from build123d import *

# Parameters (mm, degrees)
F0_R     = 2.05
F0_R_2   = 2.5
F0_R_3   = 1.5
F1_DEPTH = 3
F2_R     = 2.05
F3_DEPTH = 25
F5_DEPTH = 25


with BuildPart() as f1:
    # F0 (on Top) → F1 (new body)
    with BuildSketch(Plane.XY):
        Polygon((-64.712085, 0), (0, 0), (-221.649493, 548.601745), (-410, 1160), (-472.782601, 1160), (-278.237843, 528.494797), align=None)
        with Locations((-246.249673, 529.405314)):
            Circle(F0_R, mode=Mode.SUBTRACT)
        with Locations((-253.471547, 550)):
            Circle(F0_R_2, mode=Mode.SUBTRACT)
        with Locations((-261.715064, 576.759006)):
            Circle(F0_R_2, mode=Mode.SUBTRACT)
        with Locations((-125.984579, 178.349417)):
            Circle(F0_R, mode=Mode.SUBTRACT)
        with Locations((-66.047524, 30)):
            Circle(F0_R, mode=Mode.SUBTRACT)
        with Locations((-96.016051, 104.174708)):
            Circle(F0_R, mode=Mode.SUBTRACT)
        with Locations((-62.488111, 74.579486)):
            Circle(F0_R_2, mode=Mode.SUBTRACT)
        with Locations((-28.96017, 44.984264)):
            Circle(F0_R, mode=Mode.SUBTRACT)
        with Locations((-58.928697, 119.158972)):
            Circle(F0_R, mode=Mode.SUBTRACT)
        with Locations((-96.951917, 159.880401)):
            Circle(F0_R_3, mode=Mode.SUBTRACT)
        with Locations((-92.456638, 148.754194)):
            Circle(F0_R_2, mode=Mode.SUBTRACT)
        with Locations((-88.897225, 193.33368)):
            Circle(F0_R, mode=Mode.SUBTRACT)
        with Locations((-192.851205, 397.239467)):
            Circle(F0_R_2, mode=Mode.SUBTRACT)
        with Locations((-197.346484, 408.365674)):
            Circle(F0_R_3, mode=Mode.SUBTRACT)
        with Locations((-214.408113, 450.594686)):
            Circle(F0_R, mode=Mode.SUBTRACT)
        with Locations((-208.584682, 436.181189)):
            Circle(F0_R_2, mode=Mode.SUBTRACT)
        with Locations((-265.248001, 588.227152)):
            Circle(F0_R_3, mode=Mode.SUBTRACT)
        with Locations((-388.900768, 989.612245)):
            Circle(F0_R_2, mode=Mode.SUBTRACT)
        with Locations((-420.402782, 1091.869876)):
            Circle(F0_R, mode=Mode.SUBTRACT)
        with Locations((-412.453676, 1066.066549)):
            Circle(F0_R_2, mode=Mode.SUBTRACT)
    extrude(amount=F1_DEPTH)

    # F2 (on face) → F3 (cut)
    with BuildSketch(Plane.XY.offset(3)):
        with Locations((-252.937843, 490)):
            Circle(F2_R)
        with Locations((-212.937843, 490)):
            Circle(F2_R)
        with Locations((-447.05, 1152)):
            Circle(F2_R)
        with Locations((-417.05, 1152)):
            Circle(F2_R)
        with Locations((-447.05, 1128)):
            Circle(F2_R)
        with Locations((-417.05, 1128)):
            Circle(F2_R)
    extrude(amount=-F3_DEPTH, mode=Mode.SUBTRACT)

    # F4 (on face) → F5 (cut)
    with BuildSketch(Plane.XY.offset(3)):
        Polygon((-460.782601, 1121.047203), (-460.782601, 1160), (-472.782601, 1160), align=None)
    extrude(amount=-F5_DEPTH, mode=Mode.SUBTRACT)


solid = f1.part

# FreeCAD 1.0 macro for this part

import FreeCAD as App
import Part
import Sketcher

V = App.Vector
Q = App.Units.Quantity

doc = App.newDocument("Part")
body = doc.addObject("PartDesign::Body", "Body")

# Sketch on XY plane
sketch1 = doc.addObject("Sketcher::SketchObject", "Sketch")
body.addObject(sketch1)
sketch1.AttachmentSupport = (doc.XY_Plane, [""])
sketch1.MapMode = "FlatFace"
sketch1.addGeometry(Part.LineSegment(V(-64.712085, 0, 0), V(0, 0, 0)), False)
sketch1.addGeometry(Part.LineSegment(V(0, 0, 0), V(-221.649493, 548.601745, 0)), False)
sketch1.addGeometry(Part.LineSegment(V(-221.649493, 548.601745, 0), V(-410, 1160, 0)), False)
sketch1.addGeometry(Part.LineSegment(V(-410, 1160, 0), V(-472.782601, 1160, 0)), False)
sketch1.addGeometry(Part.LineSegment(V(-472.782601, 1160, 0), V(-278.237843, 528.494797, 0)), False)
sketch1.addGeometry(Part.LineSegment(V(-278.237843, 528.494797, 0), V(-64.712085, 0, 0)), False)
sketch1.addGeometry(Part.Circle(V(-253.471547, 550, 0), V(0, 0, 1), 2.5), False)
sketch1.addGeometry(Part.Circle(V(-246.249673, 529.405314, 0), V(0, 0, 1), 2.05), False)
sketch1.addGeometry(Part.Circle(V(-125.984579, 178.349417, 0), V(0, 0, 1), 2.05), False)
sketch1.addGeometry(Part.Circle(V(-96.016051, 104.174708, 0), V(0, 0, 1), 2.05), False)
sketch1.addGeometry(Part.Circle(V(-96.951917, 159.880401, 0), V(0, 0, 1), 1.5), False)
sketch1.addGeometry(Part.Circle(V(-92.456638, 148.754194, 0), V(0, 0, 1), 2.5), False)
sketch1.addGeometry(Part.Circle(V(-66.047524, 30, 0), V(0, 0, 1), 2.05), False)
sketch1.addGeometry(Part.Circle(V(-62.488111, 74.579486, 0), V(0, 0, 1), 2.5), False)
sketch1.addGeometry(Part.Circle(V(-28.96017, 44.984264, 0), V(0, 0, 1), 2.05), False)
sketch1.addGeometry(Part.Circle(V(-58.928697, 119.158972, 0), V(0, 0, 1), 2.05), False)
sketch1.addGeometry(Part.Circle(V(-88.897225, 193.33368, 0), V(0, 0, 1), 2.05), False)
sketch1.addGeometry(Part.Circle(V(-197.346484, 408.365674, 0), V(0, 0, 1), 1.5), False)
sketch1.addGeometry(Part.Circle(V(-192.851205, 397.239467, 0), V(0, 0, 1), 2.5), False)
sketch1.addGeometry(Part.Circle(V(-214.408113, 450.594686, 0), V(0, 0, 1), 2.05), False)
sketch1.addGeometry(Part.Circle(V(-208.584682, 436.181189, 0), V(0, 0, 1), 2.5), False)
sketch1.addGeometry(Part.Circle(V(-265.248001, 588.227152, 0), V(0, 0, 1), 1.5), False)
sketch1.addGeometry(Part.Circle(V(-261.715064, 576.759006, 0), V(0, 0, 1), 2.5), False)
sketch1.addGeometry(Part.Circle(V(-388.900768, 989.612245, 0), V(0, 0, 1), 2.5), False)
sketch1.addGeometry(Part.Circle(V(-412.453676, 1066.066549, 0), V(0, 0, 1), 2.5), False)
sketch1.addGeometry(Part.Circle(V(-420.402782, 1091.869876, 0), V(0, 0, 1), 2.05), False)
sketch1.addConstraint(Sketcher.Constraint("Coincident", 0, 2, 1, 1))
sketch1.addConstraint(Sketcher.Constraint("Coincident", 1, 2, 2, 1))
sketch1.addConstraint(Sketcher.Constraint("Coincident", 2, 2, 3, 1))
sketch1.addConstraint(Sketcher.Constraint("Coincident", 3, 2, 4, 1))
sketch1.addConstraint(Sketcher.Constraint("Coincident", 4, 2, 5, 1))
sketch1.addConstraint(Sketcher.Constraint("Coincident", 5, 2, 0, 1))
sketch1.addConstraint(Sketcher.Constraint("Horizontal", 0))
sketch1.addConstraint(Sketcher.Constraint("Horizontal", 3))
sketch1.addConstraint(Sketcher.Constraint("Coincident", 0, 2, -1, 1))
sketch1.addConstraint(Sketcher.Constraint("Equal", 7, 8))
sketch1.addConstraint(Sketcher.Constraint("Equal", 8, 9))
sketch1.addConstraint(Sketcher.Constraint("Equal", 6, 11))
sketch1.addConstraint(Sketcher.Constraint("Equal", 9, 12))
sketch1.addConstraint(Sketcher.Constraint("Equal", 11, 13))
sketch1.addConstraint(Sketcher.Constraint("Equal", 12, 14))
sketch1.addConstraint(Sketcher.Constraint("Equal", 14, 15))
sketch1.addConstraint(Sketcher.Constraint("Equal", 15, 16))
sketch1.addConstraint(Sketcher.Constraint("Equal", 10, 17))
sketch1.addConstraint(Sketcher.Constraint("Equal", 13, 18))
sketch1.addConstraint(Sketcher.Constraint("Equal", 16, 19))
sketch1.addConstraint(Sketcher.Constraint("Equal", 18, 20))
sketch1.addConstraint(Sketcher.Constraint("Equal", 17, 21))
sketch1.addConstraint(Sketcher.Constraint("Equal", 20, 22))
sketch1.addConstraint(Sketcher.Constraint("Equal", 22, 23))
sketch1.addConstraint(Sketcher.Constraint("Equal", 23, 24))
sketch1.addConstraint(Sketcher.Constraint("Equal", 19, 25))
sketch1.addConstraint(Sketcher.Constraint("Parallel", 2, 4))
sketch1.addConstraint(Sketcher.Constraint("Parallel", 1, 5))
sketch1.addConstraint(Sketcher.Constraint("Diameter", 6, Q("5 mm")))
sketch1.addConstraint(Sketcher.Constraint("Diameter", 10, Q("3 mm")))
sketch1.addConstraint(Sketcher.Constraint("Diameter", 7, Q("4.1 mm")))
sketch1.addConstraint(Sketcher.Constraint("Angle", 1, Q("112 deg")))
sketch1.addConstraint(Sketcher.Constraint("Distance", 5, Q("570 mm")))
sketch1.addConstraint(Sketcher.Constraint("DistanceY", -1, 1, 6, 3, Q("550 mm")))
sketch1.addConstraint(Sketcher.Constraint("DistanceY", -1, 1, 12, 3, Q("30 mm")))
sketch1.addConstraint(Sketcher.Constraint("DistanceX", 2, 2, -1, 1, Q("410 mm")))
sketch1.addConstraint(Sketcher.Constraint("DistanceY", -1, 1, 2, 2, Q("1160 mm")))
sketch1.addConstraint(Sketcher.Constraint("DistanceX", 3, 2, 3, 1, Q("62.782601 mm")))
sketch1.addConstraint(Sketcher.Constraint("DistanceX", 21, 3, -1, 1, Q("265.248001 mm")))
sketch1.addConstraint(Sketcher.Constraint("DistanceY", -1, 1, 10, 3, Q("159.880401 mm")))
sketch1.addConstraint(Sketcher.Constraint("DistanceX", 0, 1, 0, 2, Q("64.712085 mm")))
sketch1.addConstraint(Sketcher.Constraint("DistanceX", 8, 3, -1, 1, Q("125.984579 mm")))
sketch1.addConstraint(Sketcher.Constraint("DistanceX", 9, 3, -1, 1, Q("96.016051 mm")))
sketch1.addConstraint(Sketcher.Constraint("DistanceX", 11, 3, -1, 1, Q("92.456638 mm")))
sketch1.addConstraint(Sketcher.Constraint("DistanceX", 13, 3, -1, 1, Q("62.488111 mm")))
sketch1.addConstraint(Sketcher.Constraint("DistanceX", 14, 3, -1, 1, Q("28.96017 mm")))
sketch1.addConstraint(Sketcher.Constraint("DistanceY", -1, 1, 16, 3, Q("193.33368 mm")))
sketch1.addConstraint(Sketcher.Constraint("DistanceX", 20, 3, -1, 1, Q("208.584682 mm")))
sketch1.addConstraint(Sketcher.Constraint("DistanceY", -1, 1, 20, 3, Q("436.181189 mm")))
sketch1.addConstraint(Sketcher.Constraint("DistanceY", -1, 1, 21, 3, Q("588.227152 mm")))
sketch1.addConstraint(Sketcher.Constraint("DistanceX", 23, 3, -1, 1, Q("388.900768 mm")))
sketch1.addConstraint(Sketcher.Constraint("DistanceY", -1, 1, 24, 3, Q("1066.066549 mm")))
sketch1.addConstraint(Sketcher.Constraint("DistanceX", 25, 3, -1, 1, Q("420.402782 mm")))
sketch1.addConstraint(Sketcher.Constraint("DistanceY", 9, 3, 8, 3, Q("74.174709 mm")))
sketch1.addConstraint(Sketcher.Constraint("DistanceX", 7, 3, 9, 3, Q("150.233622 mm")))
sketch1.addConstraint(Sketcher.Constraint("DistanceY", 9, 3, 6, 3, Q("445.825292 mm")))
sketch1.addConstraint(Sketcher.Constraint("DistanceX", 6, 3, 10, 3, Q("156.51963 mm")))
sketch1.addConstraint(Sketcher.Constraint("DistanceX", 10, 3, 11, 3, Q("4.495279 mm")))
sketch1.addConstraint(Sketcher.Constraint("DistanceY", 11, 3, 7, 3, Q("380.65112 mm")))
sketch1.addConstraint(Sketcher.Constraint("DistanceX", 7, 3, 12, 3, Q("180.202149 mm")))
sketch1.addConstraint(Sketcher.Constraint("DistanceY", 13, 3, 9, 3, Q("29.595222 mm")))
sketch1.addConstraint(Sketcher.Constraint("DistanceY", 13, 3, 11, 3, Q("74.174708 mm")))
sketch1.addConstraint(Sketcher.Constraint("DistanceY", 14, 3, 13, 3, Q("29.595222 mm")))
sketch1.addConstraint(Sketcher.Constraint("DistanceX", 11, 3, 15, 3, Q("33.527941 mm")))
sketch1.addConstraint(Sketcher.Constraint("DistanceY", 15, 3, 10, 3, Q("40.721429 mm")))
sketch1.addConstraint(Sketcher.Constraint("DistanceX", 10, 3, 16, 3, Q("8.054692 mm")))
sketch1.addConstraint(Sketcher.Constraint("DistanceX", 7, 3, 17, 3, Q("48.903189 mm")))
sketch1.addConstraint(Sketcher.Constraint("DistanceY", 17, 3, 7, 3, Q("121.03964 mm")))
sketch1.addConstraint(Sketcher.Constraint("DistanceX", 17, 3, 18, 3, Q("4.495279 mm")))
sketch1.addConstraint(Sketcher.Constraint("DistanceY", 8, 3, 18, 3, Q("218.89005 mm")))
sketch1.addConstraint(Sketcher.Constraint("DistanceX", 19, 3, 17, 3, Q("17.061629 mm")))
sketch1.addConstraint(Sketcher.Constraint("DistanceY", 18, 3, 19, 3, Q("53.355219 mm")))
sketch1.addConstraint(Sketcher.Constraint("DistanceX", 22, 3, 7, 3, Q("15.465391 mm")))
sketch1.addConstraint(Sketcher.Constraint("DistanceY", 19, 3, 22, 3, Q("126.16432 mm")))
sketch1.addConstraint(Sketcher.Constraint("DistanceY", 22, 3, 23, 3, Q("412.853239 mm")))
sketch1.addConstraint(Sketcher.Constraint("DistanceX", 24, 3, 22, 3, Q("150.738612 mm")))
sketch1.addConstraint(Sketcher.Constraint("DistanceY", 23, 3, 25, 3, Q("102.257631 mm")))
pad1 = doc.addObject("PartDesign::Pad", "Pad")
body.addObject(pad1)
pad1.Profile = sketch1
pad1.Length = 3

# Sketch on XY plane
sketch2 = doc.addObject("Sketcher::SketchObject", "Sketch001")
body.addObject(sketch2)
sketch2.AttachmentSupport = (doc.XY_Plane, [""])
sketch2.MapMode = "FlatFace"
sketch2.AttachmentOffset = App.Placement(V(0, 0, 3), App.Rotation())
sketch2.addGeometry(Part.Circle(V(-252.937843, 490, 0), V(0, 0, 1), 2.05), False)
sketch2.addGeometry(Part.Circle(V(-212.937843, 490, 0), V(0, 0, 1), 2.05), False)
sketch2.addGeometry(Part.Circle(V(-447.05, 1152, 0), V(0, 0, 1), 2.05), False)
sketch2.addGeometry(Part.Circle(V(-417.05, 1152, 0), V(0, 0, 1), 2.05), False)
sketch2.addGeometry(Part.Circle(V(-447.05, 1128, 0), V(0, 0, 1), 2.05), False)
sketch2.addGeometry(Part.Circle(V(-417.05, 1128, 0), V(0, 0, 1), 2.05), False)
sketch2.addConstraint(Sketcher.Constraint("Equal", 0, 1))
sketch2.addConstraint(Sketcher.Constraint("Equal", 1, 2))
sketch2.addConstraint(Sketcher.Constraint("Equal", 2, 3))
sketch2.addConstraint(Sketcher.Constraint("Equal", 3, 4))
sketch2.addConstraint(Sketcher.Constraint("Equal", 4, 5))
sketch2.addConstraint(Sketcher.Constraint("Horizontal", 0, 3, 1, 3))
sketch2.addConstraint(Sketcher.Constraint("Horizontal", 2, 3, 3, 3))
sketch2.addConstraint(Sketcher.Constraint("Horizontal", 4, 3, 5, 3))
sketch2.addConstraint(Sketcher.Constraint("Vertical", 2, 3, 4, 3))
sketch2.addConstraint(Sketcher.Constraint("Vertical", 3, 3, 5, 3))
sketch2.addConstraint(Sketcher.Constraint("Diameter", 0, Q("4.1 mm")))
sketch2.addConstraint(Sketcher.Constraint("DistanceY", -1, 1, 0, 3, Q("490 mm")))
sketch2.addConstraint(Sketcher.Constraint("DistanceY", -1, 1, 2, 3, Q("1152 mm")))
sketch2.addConstraint(Sketcher.Constraint("DistanceY", -1, 1, 4, 3, Q("1128 mm")))
sketch2.addConstraint(Sketcher.Constraint("DistanceX", 0, 3, 1, 3, Q("40 mm")))
sketch2.addConstraint(Sketcher.Constraint("DistanceX", 2, 3, 3, 3, Q("30 mm")))
sketch2.addConstraint(Sketcher.Constraint("DistanceX", 2, 3, -1, 1, Q("447.05 mm")))
sketch2.addConstraint(Sketcher.Constraint("DistanceX", 0, 3, -1, 1, Q("252.937843 mm")))
pocket1 = doc.addObject("PartDesign::Pocket", "Pocket")
body.addObject(pocket1)
pocket1.Profile = sketch2
pocket1.Length = 25

# Sketch on XY plane
sketch3 = doc.addObject("Sketcher::SketchObject", "Sketch002")
body.addObject(sketch3)
sketch3.AttachmentSupport = (doc.XY_Plane, [""])
sketch3.MapMode = "FlatFace"
sketch3.AttachmentOffset = App.Placement(V(0, 0, 3), App.Rotation())
sketch3.addGeometry(Part.LineSegment(V(-460.782601, 1121.047203, 0), V(-460.782601, 1160, 0)), False)
sketch3.addGeometry(Part.LineSegment(V(-460.782601, 1160, 0), V(-472.782601, 1160, 0)), False)
sketch3.addGeometry(Part.LineSegment(V(-472.782601, 1160, 0), V(-460.782601, 1121.047203, 0)), False)
sketch3.addConstraint(Sketcher.Constraint("Coincident", 0, 2, 1, 1))
sketch3.addConstraint(Sketcher.Constraint("Coincident", 1, 2, 2, 1))
sketch3.addConstraint(Sketcher.Constraint("Coincident", 2, 2, 0, 1))
sketch3.addConstraint(Sketcher.Constraint("Vertical", 0))
sketch3.addConstraint(Sketcher.Constraint("Horizontal", 1))
sketch3.addConstraint(Sketcher.Constraint("DistanceX", 1, 2, 1, 1, Q("12 mm")))
sketch3.addConstraint(Sketcher.Constraint("DistanceY", -1, 1, 0, 2, Q("1160 mm")))
sketch3.addConstraint(Sketcher.Constraint("Distance", 2, Q("40.759298 mm")))
sketch3.addConstraint(Sketcher.Constraint("DistanceX", 0, 2, -1, 1, Q("460.782601 mm")))
pocket2 = doc.addObject("PartDesign::Pocket", "Pocket001")
body.addObject(pocket2)
pocket2.Profile = sketch3
pocket2.Length = 25

doc.recompute()
